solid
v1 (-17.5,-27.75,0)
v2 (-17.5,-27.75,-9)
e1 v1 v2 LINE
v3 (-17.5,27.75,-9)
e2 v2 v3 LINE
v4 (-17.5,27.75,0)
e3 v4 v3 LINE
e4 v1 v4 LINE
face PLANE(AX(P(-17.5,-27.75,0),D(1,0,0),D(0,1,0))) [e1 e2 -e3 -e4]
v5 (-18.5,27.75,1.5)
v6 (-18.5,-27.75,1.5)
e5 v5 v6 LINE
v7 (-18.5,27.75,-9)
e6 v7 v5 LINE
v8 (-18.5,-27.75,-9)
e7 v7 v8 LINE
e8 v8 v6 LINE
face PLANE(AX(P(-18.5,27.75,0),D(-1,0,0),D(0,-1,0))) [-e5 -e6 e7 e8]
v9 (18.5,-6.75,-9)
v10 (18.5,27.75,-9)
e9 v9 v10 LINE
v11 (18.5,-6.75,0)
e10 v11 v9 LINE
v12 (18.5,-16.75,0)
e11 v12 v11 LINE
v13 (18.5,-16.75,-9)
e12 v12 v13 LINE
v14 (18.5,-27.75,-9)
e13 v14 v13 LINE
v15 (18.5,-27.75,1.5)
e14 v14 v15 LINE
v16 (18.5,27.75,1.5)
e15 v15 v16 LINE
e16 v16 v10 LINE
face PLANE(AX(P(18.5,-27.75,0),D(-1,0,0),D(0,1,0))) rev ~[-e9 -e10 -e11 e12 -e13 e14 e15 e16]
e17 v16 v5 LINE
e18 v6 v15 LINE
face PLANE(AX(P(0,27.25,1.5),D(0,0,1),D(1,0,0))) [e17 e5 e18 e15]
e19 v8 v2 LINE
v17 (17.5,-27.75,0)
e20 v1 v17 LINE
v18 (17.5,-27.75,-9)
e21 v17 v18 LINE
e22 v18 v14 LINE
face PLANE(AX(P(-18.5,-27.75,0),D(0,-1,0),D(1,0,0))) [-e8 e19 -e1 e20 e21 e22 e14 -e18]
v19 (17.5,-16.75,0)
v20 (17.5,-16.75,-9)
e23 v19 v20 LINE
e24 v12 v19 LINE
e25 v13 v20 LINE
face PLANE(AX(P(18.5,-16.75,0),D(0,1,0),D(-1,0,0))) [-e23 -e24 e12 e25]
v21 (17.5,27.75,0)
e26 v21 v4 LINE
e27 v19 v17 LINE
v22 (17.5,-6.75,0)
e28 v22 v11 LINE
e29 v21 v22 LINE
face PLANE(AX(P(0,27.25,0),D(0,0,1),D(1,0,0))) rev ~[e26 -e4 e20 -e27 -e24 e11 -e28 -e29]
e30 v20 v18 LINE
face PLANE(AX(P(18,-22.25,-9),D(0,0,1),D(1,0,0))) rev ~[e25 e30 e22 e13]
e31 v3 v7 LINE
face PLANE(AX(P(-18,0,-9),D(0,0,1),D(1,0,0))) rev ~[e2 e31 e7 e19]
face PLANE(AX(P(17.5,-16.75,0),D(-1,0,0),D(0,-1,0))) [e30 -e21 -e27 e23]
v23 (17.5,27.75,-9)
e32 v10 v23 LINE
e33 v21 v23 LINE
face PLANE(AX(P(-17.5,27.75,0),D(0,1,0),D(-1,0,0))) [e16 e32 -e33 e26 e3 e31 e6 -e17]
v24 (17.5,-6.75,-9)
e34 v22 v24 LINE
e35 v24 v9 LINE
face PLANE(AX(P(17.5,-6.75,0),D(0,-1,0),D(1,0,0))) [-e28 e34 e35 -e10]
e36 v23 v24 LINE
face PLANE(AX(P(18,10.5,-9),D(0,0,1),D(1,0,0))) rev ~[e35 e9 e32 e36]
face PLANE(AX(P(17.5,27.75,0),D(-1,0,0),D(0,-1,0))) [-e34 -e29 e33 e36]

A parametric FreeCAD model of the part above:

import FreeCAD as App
import Part
import Sketcher
from FreeCAD import Vector

doc = App.newDocument("Part")
body = doc.addObject("PartDesign::Body", "Body")

sketch1 = doc.addObject("Sketcher::SketchObject", "Sketch")
body.addObject(sketch1)
sketch1.AttachmentSupport = (doc.XY_Plane, [""])
sketch1.MapMode = "FlatFace"
sketch1.addGeometry(Part.LineSegment(Vector(-18, 28, 0), Vector(-18, -28, 0)), False)
sketch1.addGeometry(Part.LineSegment(Vector(-18, -28, 0), Vector(18, -28, 0)), False)
sketch1.addGeometry(Part.LineSegment(Vector(18, -28, 0), Vector(18, 28, 0)), False)
sketch1.addGeometry(Part.LineSegment(Vector(18, 28, 0), Vector(-18, 28, 0)), False)
sketch1.addConstraint(Sketcher.Constraint("Coincident", 0, 2, 1, 1))
sketch1.addConstraint(Sketcher.Constraint("Coincident", 1, 2, 2, 1))
sketch1.addConstraint(Sketcher.Constraint("Coincident", 2, 2, 3, 1))
sketch1.addConstraint(Sketcher.Constraint("Coincident", 3, 2, 0, 1))
sketch1.addConstraint(Sketcher.Constraint("Vertical", 0))
sketch1.addConstraint(Sketcher.Constraint("Horizontal", 1))
sketch1.addConstraint(Sketcher.Constraint("Vertical", 2))
sketch1.addConstraint(Sketcher.Constraint("Horizontal", 3))
sketch1.addConstraint(Sketcher.Constraint("Symmetric", 0, 2, 2, 2, -1, 1))
sketch1.addConstraint(Sketcher.Constraint("DistanceX", 1, 1, 1, 2, 37.0))
sketch1.addConstraint(Sketcher.Constraint("DistanceY", 0, 2, 0, 1, 55.5))
pad1 = doc.addObject("PartDesign::Pad", "Pad")
body.addObject(pad1)
pad1.Profile = sketch1
pad1.Length = 1.5

sketch2 = doc.addObject("Sketcher::SketchObject", "Sketch001")
body.addObject(sketch2)
sketch2.AttachmentSupport = (doc.XY_Plane, [""])
sketch2.MapMode = "FlatFace"
sketch2.addGeometry(Part.LineSegment(Vector(-17.5, 27.8, 0), Vector(-18.5, 27.8, 0)), False)
sketch2.addGeometry(Part.LineSegment(Vector(-18.5, 27.8, 0), Vector(-18.5, -27.8, 0)), False)
sketch2.addGeometry(Part.LineSegment(Vector(-18.5, -27.8, 0), Vector(-17.5, -27.8, 0)), False)
sketch2.addGeometry(Part.LineSegment(Vector(-17.5, -27.8, 0), Vector(-17.5, 27.8, 0)), False)
sketch2.addGeometry(Part.LineSegment(Vector(17.5, 27.8, 0), Vector(17.5, -6.8, 0)), False)
sketch2.addGeometry(Part.LineSegment(Vector(17.5, -6.8, 0), Vector(18.5, -6.8, 0)), False)
sketch2.addGeometry(Part.LineSegment(Vector(18.5, -6.8, 0), Vector(18.5, 27.8, 0)), False)
sketch2.addGeometry(Part.LineSegment(Vector(18.5, 27.8, 0), Vector(17.5, 27.8, 0)), False)
sketch2.addGeometry(Part.LineSegment(Vector(18.5, -16.8, 0), Vector(17.5, -16.8, 0)), False)
sketch2.addGeometry(Part.LineSegment(Vector(17.5, -16.8, 0), Vector(17.5, -27.8, 0)), False)
sketch2.addGeometry(Part.LineSegment(Vector(17.5, -27.8, 0), Vector(18.5, -27.8, 0)), False)
sketch2.addGeometry(Part.LineSegment(Vector(18.5, -27.8, 0), Vector(18.5, -16.8, 0)), False)
sketch2.addConstraint(Sketcher.Constraint("Coincident", 0, 2, 1, 1))
sketch2.addConstraint(Sketcher.Constraint("Coincident", 1, 2, 2, 1))
sketch2.addConstraint(Sketcher.Constraint("Coincident", 2, 2, 3, 1))
sketch2.addConstraint(Sketcher.Constraint("Coincident", 3, 2, 0, 1))
sketch2.addConstraint(Sketcher.Constraint("Coincident", 4, 2, 5, 1))
sketch2.addConstraint(Sketcher.Constraint("Coincident", 5, 2, 6, 1))
sketch2.addConstraint(Sketcher.Constraint("Coincident", 6, 2, 7, 1))
sketch2.addConstraint(Sketcher.Constraint("Coincident", 7, 2, 4, 1))
sketch2.addConstraint(Sketcher.Constraint("Coincident", 8, 2, 9, 1))
sketch2.addConstraint(Sketcher.Constraint("Coincident", 9, 2, 10, 1))
sketch2.addConstraint(Sketcher.Constraint("Coincident", 10, 2, 11, 1))
sketch2.addConstraint(Sketcher.Constraint("Coincident", 11, 2, 8, 1))
sketch2.addConstraint(Sketcher.Constraint("Horizontal", 0))
sketch2.addConstraint(Sketcher.Constraint("Vertical", 1))
sketch2.addConstraint(Sketcher.Constraint("Horizontal", 2))
sketch2.addConstraint(Sketcher.Constraint("Vertical", 3))
sketch2.addConstraint(Sketcher.Constraint("Vertical", 4))
sketch2.addConstraint(Sketcher.Constraint("Horizontal", 5))
sketch2.addConstraint(Sketcher.Constraint("Vertical", 6))
sketch2.addConstraint(Sketcher.Constraint("Horizontal", 7))
sketch2.addConstraint(Sketcher.Constraint("Horizontal", 8))
sketch2.addConstraint(Sketcher.Constraint("Vertical", 9))
sketch2.addConstraint(Sketcher.Constraint("Horizontal", 10))
sketch2.addConstraint(Sketcher.Constraint("Vertical", 11))
sketch2.addConstraint(Sketcher.Constraint("Symmetric", 1, 2, 6, 2, -1, 1))
sketch2.addConstraint(Sketcher.Constraint("Symmetric", 3, 2, 9, 2, -1, 1))
sketch2.addConstraint(Sketcher.Constraint("Symmetric", 3, 2, 7, 2, -2))
sketch2.addConstraint(Sketcher.Constraint("Vertical", 6, 2, 10, 2))
sketch2.addConstraint(Sketcher.Constraint("DistanceX", 0, 2, 0, 1, 1.0))
sketch2.addConstraint(Sketcher.Constraint("DistanceY", 9, 2, 9, 1, 11.0))
sketch2.addConstraint(Sketcher.Constraint("DistanceY", 1, 2, 1, 1, 55.5))
sketch2.addConstraint(Sketcher.Constraint("DistanceY", 4, 2, 4, 1, 34.5))
sketch2.addConstraint(Sketcher.Constraint("DistanceX", 2, 2, 4, 2, 35.0))
pad2 = doc.addObject("PartDesign::Pad", "Pad001")
body.addObject(pad2)
pad2.Profile = sketch2
pad2.Length = 9
pad2.Reversed = True

doc.recompute()
